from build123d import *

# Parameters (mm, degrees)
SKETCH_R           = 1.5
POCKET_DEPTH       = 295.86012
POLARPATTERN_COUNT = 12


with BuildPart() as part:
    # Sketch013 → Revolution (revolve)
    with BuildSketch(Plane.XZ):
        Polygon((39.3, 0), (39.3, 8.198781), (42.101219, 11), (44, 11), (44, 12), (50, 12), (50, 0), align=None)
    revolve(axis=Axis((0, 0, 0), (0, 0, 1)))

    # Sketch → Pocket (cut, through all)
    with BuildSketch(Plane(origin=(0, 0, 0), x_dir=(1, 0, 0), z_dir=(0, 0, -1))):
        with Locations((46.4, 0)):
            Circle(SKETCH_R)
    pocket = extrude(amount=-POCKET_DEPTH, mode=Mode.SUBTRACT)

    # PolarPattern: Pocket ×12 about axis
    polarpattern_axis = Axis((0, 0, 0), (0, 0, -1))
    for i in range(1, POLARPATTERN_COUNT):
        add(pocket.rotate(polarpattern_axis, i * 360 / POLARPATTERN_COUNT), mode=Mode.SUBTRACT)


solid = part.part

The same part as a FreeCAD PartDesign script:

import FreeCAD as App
import Part
import Sketcher
Q = App.Units.Quantity

doc = App.newDocument("Part")
body = doc.addObject("PartDesign::Body", "Body")

sketch1 = body.newObject("Sketcher::SketchObject", "Sketch")
sketch1.AttachmentSupport = (doc.getObject("XZ_Plane"), [""])
sketch1.MapMode = "FlatFace"
sketch1.addGeometry(Part.LineSegment(App.Vector(39.3, 8.198781, 0), App.Vector(39.3, 0, 0)), False)
sketch1.addGeometry(Part.LineSegment(App.Vector(39.3, 0, 0), App.Vector(50, 0, 0)), False)
sketch1.addGeometry(Part.LineSegment(App.Vector(50, 0, 0), App.Vector(50, 12, 0)), False)
sketch1.addGeometry(Part.LineSegment(App.Vector(50, 12, 0), App.Vector(44, 12, 0)), False)
sketch1.addGeometry(Part.LineSegment(App.Vector(44, 12, 0), App.Vector(44, 11, 0)), False)
sketch1.addGeometry(Part.LineSegment(App.Vector(44, 11, 0), App.Vector(42.101219, 11, 0)), False)
sketch1.addGeometry(Part.LineSegment(App.Vector(42.101219, 11, 0), App.Vector(39.3, 8.198781, 0)), False)
sketch1.addConstraint(Sketcher.Constraint("Coincident", 0, 2, 1, 1))
sketch1.addConstraint(Sketcher.Constraint("Coincident", 1, 2, 2, 1))
sketch1.addConstraint(Sketcher.Constraint("Coincident", 2, 2, 3, 1))
sketch1.addConstraint(Sketcher.Constraint("Coincident", 3, 2, 4, 1))
sketch1.addConstraint(Sketcher.Constraint("Coincident", 4, 2, 5, 1))
sketch1.addConstraint(Sketcher.Constraint("Coincident", 5, 2, 6, 1))
sketch1.addConstraint(Sketcher.Constraint("Coincident", 6, 2, 0, 1))
sketch1.addConstraint(Sketcher.Constraint("Vertical", 0))
sketch1.addConstraint(Sketcher.Constraint("Horizontal", 1))
sketch1.addConstraint(Sketcher.Constraint("Vertical", 2))
sketch1.addConstraint(Sketcher.Constraint("Horizontal", 3))
sketch1.addConstraint(Sketcher.Constraint("Vertical", 4))
sketch1.addConstraint(Sketcher.Constraint("Horizontal", 5))
sketch1.addConstraint(Sketcher.Constraint("PointOnObject", 0, 2, -1))
sketch1.addConstraint(Sketcher.Constraint("DistanceX", 3, 2, 3, 1, 6.0))
sketch1.addConstraint(Sketcher.Constraint("DistanceY", 2, 1, 2, 2, 12.0))
sketch1.addConstraint(Sketcher.Constraint("DistanceY", 4, 2, 4, 1, 1.0))
sketch1.addConstraint(Sketcher.Constraint("Angle", 6, Q("-135 deg")))
sketch1.addConstraint(Sketcher.Constraint("DistanceX", 1, 1, 1, 2, 10.7))
sketch1.addConstraint(Sketcher.Constraint("DistanceX", -1, 1, 1, 2, 50.0))
sketch1.addConstraint(Sketcher.Constraint("DistanceX", 5, 2, 5, 1, 1.898781))
revolution = body.newObject("PartDesign::Revolution", "Revolution")
revolution.Profile = sketch1
revolution.ReferenceAxis = (sketch1, ["V_Axis"])
revolution.Angle = 360

sketch2 = body.newObject("Sketcher::SketchObject", "Sketch001")
sketch2.AttachmentSupport = (doc.getObject("XY_Plane"), [""])
sketch2.MapMode = "FlatFace"
sketch2.addGeometry(Part.Circle(App.Vector(46.4, 0, 0), App.Vector(0, 0, 1), 1.5), False)
sketch2.addConstraint(Sketcher.Constraint("PointOnObject", 0, 3, -1))
sketch2.addConstraint(Sketcher.Constraint("Diameter", 0, 3.0))
sketch2.addConstraint(Sketcher.Constraint("DistanceX", -1, 1, 0, 3, 46.4))
pocket1 = body.newObject("PartDesign::Pocket", "Pocket")
pocket1.Profile = sketch2
pocket1.Type = "ThroughAll"
pocket1.Reversed = True
doc.recompute()

polarpattern = body.newObject("PartDesign::PolarPattern", "PolarPattern")
polarpattern.Originals = [pocket1]
polarpattern.Axis = (doc.getObject("Z_Axis"), [""])
polarpattern.Angle = 360
polarpattern.Occurrences = 12
body.Tip = polarpattern

doc.recompute()
